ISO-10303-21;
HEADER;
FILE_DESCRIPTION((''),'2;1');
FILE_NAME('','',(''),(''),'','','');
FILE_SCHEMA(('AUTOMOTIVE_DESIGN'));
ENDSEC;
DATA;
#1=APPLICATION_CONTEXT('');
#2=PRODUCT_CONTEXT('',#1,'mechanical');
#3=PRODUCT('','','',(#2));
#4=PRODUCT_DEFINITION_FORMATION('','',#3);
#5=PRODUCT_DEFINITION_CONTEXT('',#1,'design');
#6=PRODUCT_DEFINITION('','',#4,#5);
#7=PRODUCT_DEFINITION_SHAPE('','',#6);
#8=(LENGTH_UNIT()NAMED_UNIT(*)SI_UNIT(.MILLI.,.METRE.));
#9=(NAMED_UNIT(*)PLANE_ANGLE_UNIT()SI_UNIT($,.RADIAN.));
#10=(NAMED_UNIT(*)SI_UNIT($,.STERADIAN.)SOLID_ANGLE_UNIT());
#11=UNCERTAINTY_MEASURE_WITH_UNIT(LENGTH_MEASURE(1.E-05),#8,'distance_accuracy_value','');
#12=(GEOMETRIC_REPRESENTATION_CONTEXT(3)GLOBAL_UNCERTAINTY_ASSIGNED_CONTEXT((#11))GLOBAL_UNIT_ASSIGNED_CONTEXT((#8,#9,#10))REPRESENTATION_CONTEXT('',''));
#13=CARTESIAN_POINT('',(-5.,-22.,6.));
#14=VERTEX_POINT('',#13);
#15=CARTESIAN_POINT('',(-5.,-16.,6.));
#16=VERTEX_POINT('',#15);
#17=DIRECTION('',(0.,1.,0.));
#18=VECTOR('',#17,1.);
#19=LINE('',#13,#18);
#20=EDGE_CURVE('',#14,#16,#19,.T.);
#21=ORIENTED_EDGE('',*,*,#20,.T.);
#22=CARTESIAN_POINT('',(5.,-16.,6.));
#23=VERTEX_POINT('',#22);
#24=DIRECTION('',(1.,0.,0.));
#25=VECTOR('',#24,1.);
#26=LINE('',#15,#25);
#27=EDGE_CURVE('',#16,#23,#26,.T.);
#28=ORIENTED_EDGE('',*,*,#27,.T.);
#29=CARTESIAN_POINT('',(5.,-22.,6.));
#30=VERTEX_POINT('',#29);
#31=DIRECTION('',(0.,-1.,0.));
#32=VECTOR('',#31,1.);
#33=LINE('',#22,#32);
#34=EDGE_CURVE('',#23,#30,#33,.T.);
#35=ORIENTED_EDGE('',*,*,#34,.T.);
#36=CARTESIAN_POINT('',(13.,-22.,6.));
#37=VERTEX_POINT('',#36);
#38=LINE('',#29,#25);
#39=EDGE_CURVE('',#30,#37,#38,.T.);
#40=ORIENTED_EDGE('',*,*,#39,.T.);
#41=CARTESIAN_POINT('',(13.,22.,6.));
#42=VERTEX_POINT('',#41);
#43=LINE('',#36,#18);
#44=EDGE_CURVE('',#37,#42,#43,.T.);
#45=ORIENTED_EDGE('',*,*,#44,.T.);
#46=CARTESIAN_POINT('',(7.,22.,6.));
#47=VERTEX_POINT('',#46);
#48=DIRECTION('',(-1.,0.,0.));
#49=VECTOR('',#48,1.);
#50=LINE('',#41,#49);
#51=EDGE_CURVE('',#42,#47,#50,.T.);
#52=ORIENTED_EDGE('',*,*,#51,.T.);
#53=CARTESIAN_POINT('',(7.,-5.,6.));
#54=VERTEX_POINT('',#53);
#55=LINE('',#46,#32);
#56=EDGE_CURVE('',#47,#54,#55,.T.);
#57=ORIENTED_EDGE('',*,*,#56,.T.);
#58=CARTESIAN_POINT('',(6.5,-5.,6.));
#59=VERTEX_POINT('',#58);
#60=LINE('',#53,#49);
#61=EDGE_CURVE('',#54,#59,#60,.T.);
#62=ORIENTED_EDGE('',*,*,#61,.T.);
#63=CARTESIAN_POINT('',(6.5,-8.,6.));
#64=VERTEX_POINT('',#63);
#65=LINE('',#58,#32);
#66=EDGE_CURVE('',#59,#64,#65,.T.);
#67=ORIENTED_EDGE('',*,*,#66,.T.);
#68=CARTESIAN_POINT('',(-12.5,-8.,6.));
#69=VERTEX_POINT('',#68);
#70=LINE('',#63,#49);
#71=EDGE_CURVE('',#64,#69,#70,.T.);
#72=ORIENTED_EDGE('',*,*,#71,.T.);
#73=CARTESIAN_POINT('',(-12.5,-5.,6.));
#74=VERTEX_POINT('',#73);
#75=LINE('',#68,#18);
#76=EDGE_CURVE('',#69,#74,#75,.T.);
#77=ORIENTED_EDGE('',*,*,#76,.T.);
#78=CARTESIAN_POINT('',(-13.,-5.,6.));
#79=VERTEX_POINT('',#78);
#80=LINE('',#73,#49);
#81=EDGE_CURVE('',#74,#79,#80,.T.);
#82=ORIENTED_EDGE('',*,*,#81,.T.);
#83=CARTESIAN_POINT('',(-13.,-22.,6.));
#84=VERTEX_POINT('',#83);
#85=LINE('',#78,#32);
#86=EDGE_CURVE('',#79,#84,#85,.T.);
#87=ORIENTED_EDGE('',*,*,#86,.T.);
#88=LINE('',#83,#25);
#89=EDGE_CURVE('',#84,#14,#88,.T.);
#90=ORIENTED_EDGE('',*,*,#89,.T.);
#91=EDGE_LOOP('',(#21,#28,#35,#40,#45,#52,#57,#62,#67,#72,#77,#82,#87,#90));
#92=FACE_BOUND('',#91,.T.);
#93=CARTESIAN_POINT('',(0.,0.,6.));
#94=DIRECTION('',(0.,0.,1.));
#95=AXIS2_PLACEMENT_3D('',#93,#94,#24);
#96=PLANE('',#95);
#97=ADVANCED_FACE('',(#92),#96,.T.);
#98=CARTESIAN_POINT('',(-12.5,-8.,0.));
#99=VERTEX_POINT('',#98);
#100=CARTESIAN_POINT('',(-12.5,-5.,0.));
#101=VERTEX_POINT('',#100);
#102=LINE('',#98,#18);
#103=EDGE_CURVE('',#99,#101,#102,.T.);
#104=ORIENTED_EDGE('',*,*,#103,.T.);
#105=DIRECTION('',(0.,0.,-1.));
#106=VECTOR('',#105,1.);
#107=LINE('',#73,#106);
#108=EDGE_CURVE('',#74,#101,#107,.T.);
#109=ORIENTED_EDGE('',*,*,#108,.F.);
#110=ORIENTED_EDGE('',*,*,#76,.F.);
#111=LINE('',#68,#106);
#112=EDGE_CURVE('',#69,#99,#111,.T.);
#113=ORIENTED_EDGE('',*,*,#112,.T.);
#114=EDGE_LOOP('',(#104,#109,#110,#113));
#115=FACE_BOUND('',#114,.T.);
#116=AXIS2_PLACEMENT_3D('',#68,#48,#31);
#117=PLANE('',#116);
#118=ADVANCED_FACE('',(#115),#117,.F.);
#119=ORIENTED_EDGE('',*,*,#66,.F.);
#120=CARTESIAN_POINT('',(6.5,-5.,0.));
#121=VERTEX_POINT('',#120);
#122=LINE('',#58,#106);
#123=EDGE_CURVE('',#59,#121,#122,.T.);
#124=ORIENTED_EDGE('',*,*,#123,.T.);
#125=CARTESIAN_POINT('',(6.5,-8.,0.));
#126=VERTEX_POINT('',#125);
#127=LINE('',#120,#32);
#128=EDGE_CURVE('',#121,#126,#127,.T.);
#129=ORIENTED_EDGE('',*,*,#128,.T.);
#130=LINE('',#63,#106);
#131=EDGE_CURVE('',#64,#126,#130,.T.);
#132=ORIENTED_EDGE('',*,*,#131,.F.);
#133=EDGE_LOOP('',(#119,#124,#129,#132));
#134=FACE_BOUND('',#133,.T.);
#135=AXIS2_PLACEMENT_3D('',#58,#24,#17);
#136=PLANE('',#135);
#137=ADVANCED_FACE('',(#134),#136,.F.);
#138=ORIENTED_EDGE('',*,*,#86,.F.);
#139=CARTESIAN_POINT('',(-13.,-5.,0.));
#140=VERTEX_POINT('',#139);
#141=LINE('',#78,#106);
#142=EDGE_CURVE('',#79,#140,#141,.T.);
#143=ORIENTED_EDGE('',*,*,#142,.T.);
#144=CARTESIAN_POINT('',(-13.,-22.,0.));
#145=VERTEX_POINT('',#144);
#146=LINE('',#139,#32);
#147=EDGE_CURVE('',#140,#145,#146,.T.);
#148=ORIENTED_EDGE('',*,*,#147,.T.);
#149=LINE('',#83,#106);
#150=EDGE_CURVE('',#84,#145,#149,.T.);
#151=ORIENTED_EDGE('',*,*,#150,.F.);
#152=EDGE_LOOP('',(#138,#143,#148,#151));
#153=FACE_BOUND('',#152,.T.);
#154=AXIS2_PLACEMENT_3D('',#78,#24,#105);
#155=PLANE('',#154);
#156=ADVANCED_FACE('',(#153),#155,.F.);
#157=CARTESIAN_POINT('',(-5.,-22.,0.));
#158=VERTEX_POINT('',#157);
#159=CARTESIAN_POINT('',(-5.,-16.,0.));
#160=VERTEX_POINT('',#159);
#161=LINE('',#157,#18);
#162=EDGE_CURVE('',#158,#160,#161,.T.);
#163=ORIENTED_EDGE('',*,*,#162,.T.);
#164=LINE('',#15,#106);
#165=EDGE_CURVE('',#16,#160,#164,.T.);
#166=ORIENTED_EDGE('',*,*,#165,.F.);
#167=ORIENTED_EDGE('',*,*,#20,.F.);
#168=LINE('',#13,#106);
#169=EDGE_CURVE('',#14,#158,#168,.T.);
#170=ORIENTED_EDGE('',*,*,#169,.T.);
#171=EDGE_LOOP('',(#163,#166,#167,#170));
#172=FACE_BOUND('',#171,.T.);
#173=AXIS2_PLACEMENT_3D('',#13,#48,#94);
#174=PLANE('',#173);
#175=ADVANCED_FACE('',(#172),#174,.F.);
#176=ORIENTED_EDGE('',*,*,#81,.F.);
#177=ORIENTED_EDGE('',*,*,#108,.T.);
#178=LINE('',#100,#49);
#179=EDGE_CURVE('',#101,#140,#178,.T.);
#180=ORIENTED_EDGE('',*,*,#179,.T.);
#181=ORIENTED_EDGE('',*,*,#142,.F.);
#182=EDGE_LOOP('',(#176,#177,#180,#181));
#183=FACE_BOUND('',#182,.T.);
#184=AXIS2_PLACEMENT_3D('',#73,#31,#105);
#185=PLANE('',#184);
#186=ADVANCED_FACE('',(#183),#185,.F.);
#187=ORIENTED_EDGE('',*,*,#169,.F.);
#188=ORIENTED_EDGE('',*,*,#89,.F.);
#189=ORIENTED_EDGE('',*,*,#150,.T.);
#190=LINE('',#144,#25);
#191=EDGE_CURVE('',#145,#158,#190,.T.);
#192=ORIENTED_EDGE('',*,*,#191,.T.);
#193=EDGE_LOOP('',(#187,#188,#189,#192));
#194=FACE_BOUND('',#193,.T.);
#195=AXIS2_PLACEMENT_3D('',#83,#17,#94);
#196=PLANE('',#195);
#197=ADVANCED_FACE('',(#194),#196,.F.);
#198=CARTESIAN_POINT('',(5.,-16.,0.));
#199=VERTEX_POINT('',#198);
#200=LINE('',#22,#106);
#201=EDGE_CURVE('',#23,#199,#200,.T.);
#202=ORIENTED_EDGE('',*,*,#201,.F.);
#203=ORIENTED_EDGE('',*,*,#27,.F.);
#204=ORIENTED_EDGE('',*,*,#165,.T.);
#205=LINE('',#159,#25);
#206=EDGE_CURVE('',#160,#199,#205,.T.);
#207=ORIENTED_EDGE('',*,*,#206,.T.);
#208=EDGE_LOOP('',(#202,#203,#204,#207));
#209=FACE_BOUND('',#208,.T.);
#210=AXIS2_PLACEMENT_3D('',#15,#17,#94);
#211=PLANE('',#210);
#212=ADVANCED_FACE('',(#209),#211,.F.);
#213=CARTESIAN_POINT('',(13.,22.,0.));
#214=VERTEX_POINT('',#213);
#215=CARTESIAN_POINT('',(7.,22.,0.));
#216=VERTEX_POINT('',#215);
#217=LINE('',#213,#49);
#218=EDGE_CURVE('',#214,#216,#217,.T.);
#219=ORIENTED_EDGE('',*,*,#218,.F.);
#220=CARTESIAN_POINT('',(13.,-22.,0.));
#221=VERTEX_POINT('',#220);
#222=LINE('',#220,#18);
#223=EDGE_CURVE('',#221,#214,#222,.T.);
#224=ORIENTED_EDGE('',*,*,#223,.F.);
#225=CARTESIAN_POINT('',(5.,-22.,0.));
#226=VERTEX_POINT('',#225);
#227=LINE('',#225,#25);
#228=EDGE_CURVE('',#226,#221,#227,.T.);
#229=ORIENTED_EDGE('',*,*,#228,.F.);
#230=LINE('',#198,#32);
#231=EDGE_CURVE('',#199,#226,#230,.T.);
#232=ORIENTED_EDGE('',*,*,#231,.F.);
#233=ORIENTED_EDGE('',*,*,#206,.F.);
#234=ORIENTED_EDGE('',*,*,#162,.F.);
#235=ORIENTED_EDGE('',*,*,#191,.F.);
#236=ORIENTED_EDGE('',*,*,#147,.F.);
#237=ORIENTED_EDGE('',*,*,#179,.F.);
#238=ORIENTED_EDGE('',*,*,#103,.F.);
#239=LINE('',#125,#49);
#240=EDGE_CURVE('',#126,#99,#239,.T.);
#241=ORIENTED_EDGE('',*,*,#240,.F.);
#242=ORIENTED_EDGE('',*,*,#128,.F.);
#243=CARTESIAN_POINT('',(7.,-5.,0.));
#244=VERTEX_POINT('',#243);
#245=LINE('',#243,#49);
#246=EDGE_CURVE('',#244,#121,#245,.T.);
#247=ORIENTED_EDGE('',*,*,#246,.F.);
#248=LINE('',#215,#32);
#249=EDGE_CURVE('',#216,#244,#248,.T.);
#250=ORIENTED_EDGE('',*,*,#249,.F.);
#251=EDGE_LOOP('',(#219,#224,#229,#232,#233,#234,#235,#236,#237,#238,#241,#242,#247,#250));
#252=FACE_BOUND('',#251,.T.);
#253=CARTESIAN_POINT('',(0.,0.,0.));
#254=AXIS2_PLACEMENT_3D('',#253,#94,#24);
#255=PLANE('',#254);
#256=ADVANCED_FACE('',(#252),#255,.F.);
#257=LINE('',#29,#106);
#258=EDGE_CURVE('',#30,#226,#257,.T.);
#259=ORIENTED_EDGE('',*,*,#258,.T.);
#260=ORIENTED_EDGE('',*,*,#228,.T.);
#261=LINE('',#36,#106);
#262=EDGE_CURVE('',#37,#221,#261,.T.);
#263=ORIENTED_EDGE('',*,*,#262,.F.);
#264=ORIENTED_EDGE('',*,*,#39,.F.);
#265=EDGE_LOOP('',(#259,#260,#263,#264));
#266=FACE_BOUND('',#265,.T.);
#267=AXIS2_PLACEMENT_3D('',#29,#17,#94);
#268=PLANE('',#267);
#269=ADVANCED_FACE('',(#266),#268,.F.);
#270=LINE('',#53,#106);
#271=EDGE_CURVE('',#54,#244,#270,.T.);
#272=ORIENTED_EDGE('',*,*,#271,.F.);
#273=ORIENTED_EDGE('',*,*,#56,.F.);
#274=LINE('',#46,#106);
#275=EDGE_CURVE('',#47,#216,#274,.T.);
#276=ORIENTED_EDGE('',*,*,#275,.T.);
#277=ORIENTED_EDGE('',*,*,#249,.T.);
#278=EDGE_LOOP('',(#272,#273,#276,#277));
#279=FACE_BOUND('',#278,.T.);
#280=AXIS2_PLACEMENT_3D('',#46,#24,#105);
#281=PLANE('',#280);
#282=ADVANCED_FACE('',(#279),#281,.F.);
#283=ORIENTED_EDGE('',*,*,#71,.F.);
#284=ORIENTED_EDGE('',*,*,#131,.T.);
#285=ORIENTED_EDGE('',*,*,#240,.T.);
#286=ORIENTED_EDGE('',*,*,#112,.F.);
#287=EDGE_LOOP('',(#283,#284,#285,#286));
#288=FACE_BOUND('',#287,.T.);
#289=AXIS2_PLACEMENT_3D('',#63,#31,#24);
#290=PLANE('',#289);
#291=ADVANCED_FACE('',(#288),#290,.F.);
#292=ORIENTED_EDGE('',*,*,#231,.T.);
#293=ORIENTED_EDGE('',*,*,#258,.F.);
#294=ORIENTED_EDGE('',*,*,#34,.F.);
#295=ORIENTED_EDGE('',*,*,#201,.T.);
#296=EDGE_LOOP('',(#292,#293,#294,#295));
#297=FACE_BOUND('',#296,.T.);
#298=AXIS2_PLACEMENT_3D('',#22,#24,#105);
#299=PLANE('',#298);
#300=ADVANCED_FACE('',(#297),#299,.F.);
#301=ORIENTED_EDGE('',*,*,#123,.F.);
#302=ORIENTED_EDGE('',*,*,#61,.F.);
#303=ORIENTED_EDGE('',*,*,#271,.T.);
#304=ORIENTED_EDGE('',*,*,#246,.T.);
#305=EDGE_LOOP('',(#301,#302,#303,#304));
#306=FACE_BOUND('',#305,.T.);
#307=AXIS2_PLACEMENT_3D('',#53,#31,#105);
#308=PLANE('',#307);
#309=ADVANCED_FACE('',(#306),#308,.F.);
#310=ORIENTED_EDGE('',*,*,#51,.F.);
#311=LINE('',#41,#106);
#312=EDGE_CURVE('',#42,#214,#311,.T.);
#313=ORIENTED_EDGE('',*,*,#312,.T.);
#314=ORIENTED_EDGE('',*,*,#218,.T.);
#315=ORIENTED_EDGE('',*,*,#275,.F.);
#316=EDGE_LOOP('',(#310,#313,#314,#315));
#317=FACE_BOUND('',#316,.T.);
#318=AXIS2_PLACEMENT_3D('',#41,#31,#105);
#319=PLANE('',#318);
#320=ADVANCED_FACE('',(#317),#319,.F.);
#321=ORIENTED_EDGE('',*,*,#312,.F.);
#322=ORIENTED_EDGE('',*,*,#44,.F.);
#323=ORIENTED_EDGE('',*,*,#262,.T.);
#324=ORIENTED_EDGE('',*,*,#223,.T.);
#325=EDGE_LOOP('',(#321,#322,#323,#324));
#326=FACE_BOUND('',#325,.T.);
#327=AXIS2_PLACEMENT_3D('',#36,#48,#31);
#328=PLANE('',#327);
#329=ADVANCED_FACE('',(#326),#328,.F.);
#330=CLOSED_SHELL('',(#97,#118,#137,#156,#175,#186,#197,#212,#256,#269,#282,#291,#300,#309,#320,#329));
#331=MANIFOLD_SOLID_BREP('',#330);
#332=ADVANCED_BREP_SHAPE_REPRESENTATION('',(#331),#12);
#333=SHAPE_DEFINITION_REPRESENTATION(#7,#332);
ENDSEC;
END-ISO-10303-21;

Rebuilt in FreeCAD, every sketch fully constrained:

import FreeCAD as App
import Part
import Sketcher
from FreeCAD import Vector
Q = App.Units.Quantity

doc = App.newDocument("Part")
body = doc.addObject("PartDesign::Body", "Body")

# Sketch on XY plane
sketch1 = body.newObject("Sketcher::SketchObject", "Sketch")
sketch1.AttachmentSupport = (doc.getObject("XY_Plane"), [""])
sketch1.MapMode = "FlatFace"
sketch1.addGeometry([
    Part.LineSegment(Vector(13, -22, 0), Vector(13, 22, 0)),  # 0
    Part.LineSegment(Vector(13, 22, 0), Vector(7, 22, 0)),  # 1
    Part.LineSegment(Vector(7, 22, 0), Vector(7, -5, 0)),  # 2
    Part.LineSegment(Vector(7, -5, 0), Vector(6.5, -5, 0)),  # 3
    Part.LineSegment(Vector(6.5, -5, 0), Vector(6.5, -8, 0)),  # 4
    Part.LineSegment(Vector(6.5, -8, 0), Vector(-12.5, -8, 0)),  # 5
    Part.LineSegment(Vector(-12.5, -8, 0), Vector(-12.5, -5, 0)),  # 6
    Part.LineSegment(Vector(-12.5, -5, 0), Vector(-13, -5, 0)),  # 7
    Part.LineSegment(Vector(-13, -5, 0), Vector(-13, -22, 0)),  # 8
    Part.LineSegment(Vector(-13, -22, 0), Vector(-5, -22, 0)),  # 9
    Part.LineSegment(Vector(-5, -22, 0), Vector(-5, -16, 0)),  # 10
    Part.LineSegment(Vector(-5, -16, 0), Vector(5, -16, 0)),  # 11
    Part.LineSegment(Vector(5, -16, 0), Vector(5, -22, 0)),  # 12
    Part.LineSegment(Vector(5, -22, 0), Vector(13, -22, 0)),  # 13
], False)
sketch1.addConstraint([
    Sketcher.Constraint("Coincident", 0, 2, 1, 1),
    Sketcher.Constraint("Coincident", 1, 2, 2, 1),
    Sketcher.Constraint("Coincident", 2, 2, 3, 1),
    Sketcher.Constraint("Coincident", 3, 2, 4, 1),
    Sketcher.Constraint("Coincident", 4, 2, 5, 1),
    Sketcher.Constraint("Coincident", 5, 2, 6, 1),
    Sketcher.Constraint("Coincident", 6, 2, 7, 1),
    Sketcher.Constraint("Coincident", 7, 2, 8, 1),
    Sketcher.Constraint("Coincident", 8, 2, 9, 1),
    Sketcher.Constraint("Coincident", 9, 2, 10, 1),
    Sketcher.Constraint("Coincident", 10, 2, 11, 1),
    Sketcher.Constraint("Coincident", 11, 2, 12, 1),
    Sketcher.Constraint("Coincident", 12, 2, 13, 1),
    Sketcher.Constraint("Coincident", 13, 2, 0, 1),
    Sketcher.Constraint("Vertical", 0),
    Sketcher.Constraint("Horizontal", 1),
    Sketcher.Constraint("Vertical", 2),
    Sketcher.Constraint("Horizontal", 3),
    Sketcher.Constraint("Vertical", 4),
    Sketcher.Constraint("Horizontal", 5),
    Sketcher.Constraint("Vertical", 6),
    Sketcher.Constraint("Horizontal", 7),
    Sketcher.Constraint("Vertical", 8),
    Sketcher.Constraint("Horizontal", 9),
    Sketcher.Constraint("Vertical", 10),
    Sketcher.Constraint("Horizontal", 11),
    Sketcher.Constraint("Vertical", 12),
    Sketcher.Constraint("Horizontal", 13),
    Sketcher.Constraint("Symmetric", 0, 2, 8, 2, -1, 1),
    Sketcher.Constraint("Symmetric", 9, 2, 12, 2, -2),
    Sketcher.Constraint("Horizontal", 3, 2, 6, 2),
    Sketcher.Constraint("Equal", 3, 7),
    Sketcher.Constraint("Equal", 1, 10),
    Sketcher.Constraint("DistanceX", 1, 2, 1, 1, Q("6 mm")),
    Sketcher.Constraint("DistanceX", 5, 2, 5, 1, Q("19 mm")),
    Sketcher.Constraint("DistanceX", 9, 1, 9, 2, Q("8 mm")),
    Sketcher.Constraint("DistanceX", 11, 1, 11, 2, Q("10 mm")),
    Sketcher.Constraint("DistanceY", 0, 1, 0, 2, Q("44 mm")),
    Sketcher.Constraint("DistanceY", 2, 2, 2, 1, Q("27 mm")),
    Sketcher.Constraint("DistanceY", 4, 2, 4, 1, Q("3 mm")),
])
pad1 = body.newObject("PartDesign::Pad", "Pad")
pad1.Profile = sketch1
pad1.Length = 6

doc.recompute()
